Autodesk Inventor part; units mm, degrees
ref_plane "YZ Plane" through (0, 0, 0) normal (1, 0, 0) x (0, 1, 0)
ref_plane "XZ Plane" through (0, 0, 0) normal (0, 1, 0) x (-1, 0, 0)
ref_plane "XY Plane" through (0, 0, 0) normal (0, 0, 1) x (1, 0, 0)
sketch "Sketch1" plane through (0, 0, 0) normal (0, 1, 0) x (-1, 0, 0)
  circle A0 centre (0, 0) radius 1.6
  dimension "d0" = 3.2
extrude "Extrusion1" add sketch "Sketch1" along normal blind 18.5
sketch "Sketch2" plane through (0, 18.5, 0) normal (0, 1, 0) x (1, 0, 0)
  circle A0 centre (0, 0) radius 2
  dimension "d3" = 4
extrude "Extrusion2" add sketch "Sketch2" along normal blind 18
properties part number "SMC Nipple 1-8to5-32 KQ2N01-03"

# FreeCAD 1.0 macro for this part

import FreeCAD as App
import Part
import Sketcher
from FreeCAD import Vector
Q = App.Units.Quantity

doc = App.newDocument("Part")
body = doc.addObject("PartDesign::Body", "Body")

# Sketch on XZ plane
sketch1 = doc.addObject("Sketcher::SketchObject", "Sketch")
body.addObject(sketch1)
sketch1.AttachmentSupport = (doc.XZ_Plane, [""])
sketch1.MapMode = "FlatFace"
sketch1.addGeometry(Part.Circle(Vector(0, 0, 0), Vector(0, 0, 1), 1.6), False)
sketch1.addConstraint([
    Sketcher.Constraint("Coincident", 0, 3, -1, 1),
    Sketcher.Constraint("Diameter", 0, Q("3.2 mm")),
])
pad1 = doc.addObject("PartDesign::Pad", "Pad")
body.addObject(pad1)
pad1.Profile = sketch1
pad1.Length = 18.5
pad1.Reversed = True

# Sketch on XZ plane
sketch2 = doc.addObject("Sketcher::SketchObject", "Sketch001")
body.addObject(sketch2)
sketch2.AttachmentSupport = (doc.XZ_Plane, [""])
sketch2.MapMode = "FlatFace"
sketch2.AttachmentOffset = App.Placement(Vector(0, 0, -18.5), App.Rotation())
sketch2.addGeometry(Part.Circle(Vector(0, 0, 0), Vector(0, 0, 1), 2), False)
sketch2.addConstraint([
    Sketcher.Constraint("Coincident", 0, 3, -1, 1),
    Sketcher.Constraint("Diameter", 0, Q("4 mm")),
])
pad2 = doc.addObject("PartDesign::Pad", "Pad001")
body.addObject(pad2)
pad2.Profile = sketch2
pad2.Length = 18
pad2.Reversed = True

doc.recompute()
